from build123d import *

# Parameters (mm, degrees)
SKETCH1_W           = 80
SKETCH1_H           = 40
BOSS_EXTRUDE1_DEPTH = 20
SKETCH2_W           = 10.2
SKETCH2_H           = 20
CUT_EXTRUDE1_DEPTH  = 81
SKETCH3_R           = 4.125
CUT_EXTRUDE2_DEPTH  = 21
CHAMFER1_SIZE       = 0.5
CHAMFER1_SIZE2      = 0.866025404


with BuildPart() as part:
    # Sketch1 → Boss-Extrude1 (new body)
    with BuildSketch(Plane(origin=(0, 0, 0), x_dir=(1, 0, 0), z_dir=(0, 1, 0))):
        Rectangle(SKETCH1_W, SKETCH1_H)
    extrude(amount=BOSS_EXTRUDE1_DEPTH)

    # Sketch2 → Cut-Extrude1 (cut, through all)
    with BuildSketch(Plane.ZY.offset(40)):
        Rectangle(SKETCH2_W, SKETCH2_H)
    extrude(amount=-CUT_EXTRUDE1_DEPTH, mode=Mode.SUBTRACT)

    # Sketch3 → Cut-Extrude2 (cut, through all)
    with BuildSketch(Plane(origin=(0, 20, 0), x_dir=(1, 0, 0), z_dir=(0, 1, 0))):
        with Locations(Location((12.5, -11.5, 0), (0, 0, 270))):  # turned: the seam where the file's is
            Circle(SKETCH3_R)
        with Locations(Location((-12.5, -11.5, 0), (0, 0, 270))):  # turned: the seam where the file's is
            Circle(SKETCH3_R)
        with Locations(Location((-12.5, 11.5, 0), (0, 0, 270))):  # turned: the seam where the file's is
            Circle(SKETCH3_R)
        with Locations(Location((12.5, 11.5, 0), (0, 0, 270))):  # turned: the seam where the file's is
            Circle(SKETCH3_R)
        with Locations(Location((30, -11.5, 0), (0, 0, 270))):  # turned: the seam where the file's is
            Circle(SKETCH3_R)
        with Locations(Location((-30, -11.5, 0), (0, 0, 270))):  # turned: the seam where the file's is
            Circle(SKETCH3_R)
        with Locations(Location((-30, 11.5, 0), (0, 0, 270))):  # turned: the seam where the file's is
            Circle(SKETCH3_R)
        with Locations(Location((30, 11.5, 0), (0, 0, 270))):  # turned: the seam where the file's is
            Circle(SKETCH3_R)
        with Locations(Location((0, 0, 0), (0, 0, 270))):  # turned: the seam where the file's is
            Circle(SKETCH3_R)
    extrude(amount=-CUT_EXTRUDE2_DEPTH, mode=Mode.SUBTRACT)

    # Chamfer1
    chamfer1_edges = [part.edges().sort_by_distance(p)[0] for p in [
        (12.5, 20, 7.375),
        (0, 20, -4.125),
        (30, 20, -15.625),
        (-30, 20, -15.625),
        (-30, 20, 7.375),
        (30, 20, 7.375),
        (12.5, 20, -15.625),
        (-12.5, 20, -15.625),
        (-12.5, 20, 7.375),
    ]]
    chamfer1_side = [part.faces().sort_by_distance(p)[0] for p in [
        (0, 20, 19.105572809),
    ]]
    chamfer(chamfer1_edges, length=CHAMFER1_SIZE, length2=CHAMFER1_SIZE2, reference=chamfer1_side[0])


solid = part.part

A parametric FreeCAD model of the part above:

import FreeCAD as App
import Part
import Sketcher
from FreeCAD import Vector
Q = App.Units.Quantity


def edges_at(feature, points):
    """Names of the edges that pass closest to the given points."""
    edges = feature.Shape.Edges
    near = lambda p: min(range(len(edges)), key=lambda i: edges[i].distToShape(Part.Vertex(*p))[0])
    return sorted({f"Edge{near(p) + 1}" for p in points})

doc = App.newDocument("Part")
params = doc.addObject("Spreadsheet::Sheet", "Params")
for row, (alias, value) in enumerate([
    ("sketch1_width", "80 mm"),
    ("sketch1_height", "40 mm"),
    ("pad1_length", "20 mm"),
    ("sketch2_width", "20 mm"),
    ("sketch2_height", "10.2 mm"),
    ("sketch3_diameter", "8.25 mm"),
    ("chamfer_size", "0.5 mm"),
    ("chamfer_size2", "0.866025 mm"),
], start=1):
    params.set(f"A{row}", alias)
    params.set(f"B{row}", "=" + value)
    params.setAlias(f"B{row}", alias)

body = doc.addObject("PartDesign::Body", "Body")

# Sketch on XZ plane
sketch1 = body.newObject("Sketcher::SketchObject", "Sketch")
sketch1.AttachmentSupport = (doc.getObject("XZ_Plane"), [""])
sketch1.MapMode = "FlatFace"
sketch1.addGeometry([
    Part.LineSegment(Vector(-40, -20, 0), Vector(-40, 20, 0)),
    Part.LineSegment(Vector(-40, 20, 0), Vector(40, 20, 0)),
    Part.LineSegment(Vector(40, 20, 0), Vector(40, -20, 0)),
    Part.LineSegment(Vector(40, -20, 0), Vector(-40, -20, 0)),
], False)
sketch1.addConstraint([
    Sketcher.Constraint("Coincident", 0, 2, 1, 1),
    Sketcher.Constraint("Coincident", 1, 2, 2, 1),
    Sketcher.Constraint("Coincident", 2, 2, 3, 1),
    Sketcher.Constraint("Coincident", 3, 2, 0, 1),
    Sketcher.Constraint("Vertical", 0),
    Sketcher.Constraint("Horizontal", 1),
    Sketcher.Constraint("Vertical", 2),
    Sketcher.Constraint("Horizontal", 3),
    Sketcher.Constraint("Symmetric", 0, 2, 2, 2, -1, 1),
    Sketcher.Constraint("DistanceX", 1, 1, 1, 2, Q("80 mm")),
    Sketcher.Constraint("DistanceY", 0, 1, 0, 2, Q("40 mm")),
])
sketch1.setExpression("Constraints[9]", "Params.sketch1_width")
sketch1.setExpression("Constraints[10]", "Params.sketch1_height")
pad1 = body.newObject("PartDesign::Pad", "Pad")
pad1.Profile = sketch1
pad1.setExpression("Length", "Params.pad1_length")
pad1.Reversed = True

# Sketch on YZ plane
sketch2 = body.newObject("Sketcher::SketchObject", "Sketch001")
sketch2.AttachmentSupport = (doc.getObject("YZ_Plane"), [""])
sketch2.MapMode = "FlatFace"
sketch2.AttachmentOffset = App.Placement(Vector(0, 0, -40), App.Rotation())
sketch2.addGeometry([
    Part.LineSegment(Vector(10, -5, 0), Vector(-10, -5, 0)),
    Part.LineSegment(Vector(-10, -5, 0), Vector(-10, 5, 0)),
    Part.LineSegment(Vector(-10, 5, 0), Vector(10, 5, 0)),
    Part.LineSegment(Vector(10, 5, 0), Vector(10, -5, 0)),
], False)
sketch2.addConstraint([
    Sketcher.Constraint("Coincident", 0, 2, 1, 1),
    Sketcher.Constraint("Coincident", 1, 2, 2, 1),
    Sketcher.Constraint("Coincident", 2, 2, 3, 1),
    Sketcher.Constraint("Coincident", 3, 2, 0, 1),
    Sketcher.Constraint("Horizontal", 0),
    Sketcher.Constraint("Vertical", 1),
    Sketcher.Constraint("Horizontal", 2),
    Sketcher.Constraint("Vertical", 3),
    Sketcher.Constraint("Symmetric", 0, 2, 2, 2, -1, 1),
    Sketcher.Constraint("DistanceX", 0, 2, 0, 1, Q("20 mm")),
    Sketcher.Constraint("DistanceY", 1, 1, 1, 2, Q("10.2 mm")),
])
sketch2.setExpression("Constraints[9]", "Params.sketch2_width")
sketch2.setExpression("Constraints[10]", "Params.sketch2_height")
pocket1 = body.newObject("PartDesign::Pocket", "Pocket")
pocket1.Profile = sketch2
pocket1.Type = "ThroughAll"
pocket1.Reversed = True

# Sketch on XZ plane
sketch3 = body.newObject("Sketcher::SketchObject", "Sketch002")
sketch3.AttachmentSupport = (doc.getObject("XZ_Plane"), [""])
sketch3.MapMode = "FlatFace"
sketch3.AttachmentOffset = App.Placement(Vector(0, 0, -20), App.Rotation())
sketch3.addGeometry([
    Part.Circle(Vector(12.5, 11.5, 0), Vector(0, 0, 1), 4.1),  # 0
    Part.Circle(Vector(-12.5, 11.5, 0), Vector(0, 0, 1), 4.1),  # 1
    Part.Circle(Vector(-12.5, -11.5, 0), Vector(0, 0, 1), 4.1),  # 2
    Part.Circle(Vector(12.5, -11.5, 0), Vector(0, 0, 1), 4.1),  # 3
    Part.Circle(Vector(30, 11.5, 0), Vector(0, 0, 1), 4.1),  # 4
    Part.Circle(Vector(-30, 11.5, 0), Vector(0, 0, 1), 4.1),  # 5
    Part.Circle(Vector(-30, -11.5, 0), Vector(0, 0, 1), 4.1),  # 6
    Part.Circle(Vector(30, -11.5, 0), Vector(0, 0, 1), 4.1),  # 7
    Part.Circle(Vector(0, 0, 0), Vector(0, 0, 1), 4.1),  # 8
], False)
sketch3.addConstraint([
    Sketcher.Constraint("Coincident", 8, 3, -1, 1),
    Sketcher.Constraint("Equal", 0, 1),
    Sketcher.Constraint("Equal", 1, 2),
    Sketcher.Constraint("Equal", 2, 3),
    Sketcher.Constraint("Equal", 3, 4),
    Sketcher.Constraint("Equal", 4, 5),
    Sketcher.Constraint("Equal", 5, 6),
    Sketcher.Constraint("Equal", 6, 7),
    Sketcher.Constraint("Equal", 7, 8),
    Sketcher.Constraint("Symmetric", 0, 3, 2, 3, -1, 1),
    Sketcher.Constraint("Symmetric", 1, 3, 3, 3, -1, 1),
    Sketcher.Constraint("Symmetric", 4, 3, 6, 3, -1, 1),
    Sketcher.Constraint("Symmetric", 5, 3, 7, 3, -1, 1),
    Sketcher.Constraint("Symmetric", 0, 3, 1, 3, -2),
    Sketcher.Constraint("Symmetric", 4, 3, 5, 3, -2),
    Sketcher.Constraint("Horizontal", 1, 3, 4, 3),
    Sketcher.Constraint("Diameter", 0, Q("8.25 mm")),
    Sketcher.Constraint("DistanceX", -1, 1, 4, 3, Q("30 mm")),
    Sketcher.Constraint("DistanceX", 1, 3, 0, 3, Q("25 mm")),
    Sketcher.Constraint("DistanceY", 2, 3, 1, 3, Q("23 mm")),
])
sketch3.setExpression("Constraints[16]", "Params.sketch3_diameter")
pocket2 = body.newObject("PartDesign::Pocket", "Pocket001")
pocket2.Profile = sketch3
pocket2.Type = "ThroughAll"
pocket2.Reversed = True
doc.recompute()

chamfer = body.newObject("PartDesign::Chamfer", "Chamfer")
chamfer.Base = (pocket2, edges_at(pocket2, [
    (12.5, 20, 7.375),
    (0, 20, -4.125),
    (30, 20, -15.625),
    (-30, 20, -15.625),
    (-30, 20, 7.375),
    (30, 20, 7.375),
    (12.5, 20, -15.625),
    (-12.5, 20, -15.625),
    (-12.5, 20, 7.375),
]))
chamfer.ChamferType = "Two distances"
chamfer.setExpression("Size", "Params.chamfer_size")
chamfer.setExpression("Size2", "Params.chamfer_size2")

doc.recompute()
